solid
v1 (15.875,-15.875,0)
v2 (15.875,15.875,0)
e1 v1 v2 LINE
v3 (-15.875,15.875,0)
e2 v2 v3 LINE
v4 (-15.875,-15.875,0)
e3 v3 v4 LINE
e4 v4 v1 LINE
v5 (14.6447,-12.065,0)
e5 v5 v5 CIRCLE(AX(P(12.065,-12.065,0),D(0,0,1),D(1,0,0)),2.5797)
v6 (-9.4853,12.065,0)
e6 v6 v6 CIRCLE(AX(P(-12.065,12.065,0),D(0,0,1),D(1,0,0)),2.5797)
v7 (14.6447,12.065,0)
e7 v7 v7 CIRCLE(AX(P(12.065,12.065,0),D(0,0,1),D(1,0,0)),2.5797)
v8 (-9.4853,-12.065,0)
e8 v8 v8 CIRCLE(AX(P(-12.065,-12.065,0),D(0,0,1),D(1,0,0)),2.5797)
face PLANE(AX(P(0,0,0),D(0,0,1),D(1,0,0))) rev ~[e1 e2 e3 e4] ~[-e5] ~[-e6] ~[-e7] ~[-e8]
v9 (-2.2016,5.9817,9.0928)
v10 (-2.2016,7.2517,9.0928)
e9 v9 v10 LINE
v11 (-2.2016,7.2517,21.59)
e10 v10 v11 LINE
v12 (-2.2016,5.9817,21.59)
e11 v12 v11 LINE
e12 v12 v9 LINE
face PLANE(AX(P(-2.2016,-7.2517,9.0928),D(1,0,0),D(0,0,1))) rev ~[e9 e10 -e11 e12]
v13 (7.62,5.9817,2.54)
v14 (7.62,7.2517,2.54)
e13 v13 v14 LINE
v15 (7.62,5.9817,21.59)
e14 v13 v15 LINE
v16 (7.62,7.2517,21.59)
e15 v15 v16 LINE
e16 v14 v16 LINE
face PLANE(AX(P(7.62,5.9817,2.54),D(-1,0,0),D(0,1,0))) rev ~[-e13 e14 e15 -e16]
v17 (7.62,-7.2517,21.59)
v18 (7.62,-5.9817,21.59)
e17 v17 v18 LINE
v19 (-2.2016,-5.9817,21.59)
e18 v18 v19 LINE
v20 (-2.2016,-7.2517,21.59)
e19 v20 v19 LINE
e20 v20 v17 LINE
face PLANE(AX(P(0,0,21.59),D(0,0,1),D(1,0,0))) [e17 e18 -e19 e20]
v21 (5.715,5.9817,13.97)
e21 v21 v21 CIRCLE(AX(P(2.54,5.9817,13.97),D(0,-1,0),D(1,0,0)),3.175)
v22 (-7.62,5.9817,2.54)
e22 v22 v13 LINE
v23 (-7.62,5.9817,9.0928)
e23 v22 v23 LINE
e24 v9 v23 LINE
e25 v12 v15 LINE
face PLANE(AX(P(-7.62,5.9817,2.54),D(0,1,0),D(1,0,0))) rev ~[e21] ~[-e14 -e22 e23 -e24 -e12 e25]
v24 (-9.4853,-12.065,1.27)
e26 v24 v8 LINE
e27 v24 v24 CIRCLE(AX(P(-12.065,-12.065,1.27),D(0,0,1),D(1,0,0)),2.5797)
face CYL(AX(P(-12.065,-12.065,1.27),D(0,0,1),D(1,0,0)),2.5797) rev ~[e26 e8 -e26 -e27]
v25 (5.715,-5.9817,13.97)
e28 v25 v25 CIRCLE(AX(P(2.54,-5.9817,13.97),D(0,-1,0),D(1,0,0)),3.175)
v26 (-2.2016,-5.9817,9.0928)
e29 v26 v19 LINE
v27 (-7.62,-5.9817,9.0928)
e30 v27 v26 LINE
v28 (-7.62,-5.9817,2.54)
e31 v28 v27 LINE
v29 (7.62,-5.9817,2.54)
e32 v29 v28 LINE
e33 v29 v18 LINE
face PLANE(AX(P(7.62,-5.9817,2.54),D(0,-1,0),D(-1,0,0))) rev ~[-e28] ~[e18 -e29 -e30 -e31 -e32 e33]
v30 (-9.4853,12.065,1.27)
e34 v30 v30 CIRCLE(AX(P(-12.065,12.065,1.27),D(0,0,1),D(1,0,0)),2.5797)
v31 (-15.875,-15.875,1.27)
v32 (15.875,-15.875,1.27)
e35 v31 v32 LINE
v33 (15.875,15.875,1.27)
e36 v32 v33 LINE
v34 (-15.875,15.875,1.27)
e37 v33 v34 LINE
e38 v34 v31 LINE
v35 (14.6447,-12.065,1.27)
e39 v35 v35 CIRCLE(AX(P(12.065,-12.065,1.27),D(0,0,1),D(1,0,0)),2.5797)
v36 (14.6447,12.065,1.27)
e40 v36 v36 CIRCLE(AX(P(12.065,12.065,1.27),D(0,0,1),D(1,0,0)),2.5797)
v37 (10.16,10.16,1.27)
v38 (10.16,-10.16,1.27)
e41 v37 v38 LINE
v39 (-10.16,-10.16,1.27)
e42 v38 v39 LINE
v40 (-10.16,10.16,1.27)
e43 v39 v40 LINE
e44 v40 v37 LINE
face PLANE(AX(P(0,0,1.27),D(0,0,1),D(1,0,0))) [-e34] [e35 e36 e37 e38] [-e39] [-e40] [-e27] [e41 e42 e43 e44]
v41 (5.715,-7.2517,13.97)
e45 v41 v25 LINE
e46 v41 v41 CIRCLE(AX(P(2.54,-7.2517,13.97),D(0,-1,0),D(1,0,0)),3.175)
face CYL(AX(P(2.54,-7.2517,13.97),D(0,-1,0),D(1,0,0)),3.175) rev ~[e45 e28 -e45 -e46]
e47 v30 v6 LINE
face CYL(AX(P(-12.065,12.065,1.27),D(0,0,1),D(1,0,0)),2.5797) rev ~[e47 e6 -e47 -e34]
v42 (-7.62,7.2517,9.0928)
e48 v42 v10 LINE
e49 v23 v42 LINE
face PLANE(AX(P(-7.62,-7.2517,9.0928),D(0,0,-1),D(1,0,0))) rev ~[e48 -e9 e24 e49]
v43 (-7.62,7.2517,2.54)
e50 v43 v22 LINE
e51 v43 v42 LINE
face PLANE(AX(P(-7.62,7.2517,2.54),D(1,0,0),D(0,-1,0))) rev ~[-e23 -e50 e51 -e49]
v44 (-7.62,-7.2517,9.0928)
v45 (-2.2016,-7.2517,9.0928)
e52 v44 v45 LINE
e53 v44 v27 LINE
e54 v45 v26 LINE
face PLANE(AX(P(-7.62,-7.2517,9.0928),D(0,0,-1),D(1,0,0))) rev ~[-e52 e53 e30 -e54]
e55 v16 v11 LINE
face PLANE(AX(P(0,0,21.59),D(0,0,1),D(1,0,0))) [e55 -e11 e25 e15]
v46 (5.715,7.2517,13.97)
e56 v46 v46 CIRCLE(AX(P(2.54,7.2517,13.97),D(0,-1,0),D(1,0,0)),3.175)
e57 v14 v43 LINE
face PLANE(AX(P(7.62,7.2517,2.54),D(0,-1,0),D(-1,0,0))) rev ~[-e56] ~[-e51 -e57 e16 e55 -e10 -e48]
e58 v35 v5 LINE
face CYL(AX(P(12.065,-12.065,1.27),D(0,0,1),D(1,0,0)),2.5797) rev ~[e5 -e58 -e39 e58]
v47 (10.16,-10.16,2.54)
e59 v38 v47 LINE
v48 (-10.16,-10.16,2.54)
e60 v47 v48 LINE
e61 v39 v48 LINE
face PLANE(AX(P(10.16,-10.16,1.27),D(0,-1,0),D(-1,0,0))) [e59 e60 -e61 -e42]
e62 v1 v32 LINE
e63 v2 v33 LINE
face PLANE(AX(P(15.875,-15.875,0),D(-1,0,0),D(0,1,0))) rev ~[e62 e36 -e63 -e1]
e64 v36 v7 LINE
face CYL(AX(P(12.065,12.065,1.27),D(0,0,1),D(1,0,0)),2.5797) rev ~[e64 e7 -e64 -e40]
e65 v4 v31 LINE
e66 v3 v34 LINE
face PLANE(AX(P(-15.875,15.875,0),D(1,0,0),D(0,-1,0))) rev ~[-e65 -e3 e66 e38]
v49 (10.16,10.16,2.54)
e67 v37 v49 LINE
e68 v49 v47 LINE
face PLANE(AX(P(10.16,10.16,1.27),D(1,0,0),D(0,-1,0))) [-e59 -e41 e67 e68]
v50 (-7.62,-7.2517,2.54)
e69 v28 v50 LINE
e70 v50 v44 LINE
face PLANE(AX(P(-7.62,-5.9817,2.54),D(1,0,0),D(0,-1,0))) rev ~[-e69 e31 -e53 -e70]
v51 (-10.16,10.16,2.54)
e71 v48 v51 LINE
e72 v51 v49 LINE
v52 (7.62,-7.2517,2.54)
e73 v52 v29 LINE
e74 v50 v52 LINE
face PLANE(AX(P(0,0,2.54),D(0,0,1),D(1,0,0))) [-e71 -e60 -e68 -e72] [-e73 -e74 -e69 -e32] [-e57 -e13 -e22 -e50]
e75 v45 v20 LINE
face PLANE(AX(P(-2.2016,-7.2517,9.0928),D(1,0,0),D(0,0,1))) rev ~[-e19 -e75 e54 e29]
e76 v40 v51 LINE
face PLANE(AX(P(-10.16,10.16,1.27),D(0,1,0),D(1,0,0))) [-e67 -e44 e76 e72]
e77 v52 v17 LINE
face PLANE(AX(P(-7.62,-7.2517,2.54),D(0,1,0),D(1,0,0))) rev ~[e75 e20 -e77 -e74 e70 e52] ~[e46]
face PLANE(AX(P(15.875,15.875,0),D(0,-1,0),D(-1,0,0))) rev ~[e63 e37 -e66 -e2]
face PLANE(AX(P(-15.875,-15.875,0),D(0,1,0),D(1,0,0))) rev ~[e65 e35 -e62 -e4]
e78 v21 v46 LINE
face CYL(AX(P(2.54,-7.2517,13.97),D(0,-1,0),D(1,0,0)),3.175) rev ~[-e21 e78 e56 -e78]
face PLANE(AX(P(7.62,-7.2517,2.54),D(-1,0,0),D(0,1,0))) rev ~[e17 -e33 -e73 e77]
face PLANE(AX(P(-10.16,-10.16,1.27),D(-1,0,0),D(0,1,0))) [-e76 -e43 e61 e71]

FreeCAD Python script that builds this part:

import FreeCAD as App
import Part
import Sketcher

V = App.Vector
Q = App.Units.Quantity


def add_polygon(sketch, points):
    """Adds a closed chain of lines whose ends are joined by coincident constraints."""
    first, n = sketch.GeometryCount, len(points)
    for a, b in zip(points, points[1:] + points[:1]):
        sketch.addGeometry(Part.LineSegment(App.Vector(*a, 0), App.Vector(*b, 0)), False)
    for i in range(n):
        sketch.addConstraint(Sketcher.Constraint("Coincident", first + i, 2, first + (i + 1) % n, 1))

doc = App.newDocument("Part")
params = doc.addObject("Spreadsheet::Sheet", "Params")
for row, (alias, value) in enumerate([
    ("sketch1_width", "1.25 in"),
    ("pad1_length", "0.05 in"),
    ("sketch2_width", "0.8 in"),
    ("pad2_length", "0.05 in"),
    ("sketch3_height", "0.05 in"),
    ("sketch3_width", "0.6 in"),
    ("pad3_length", "0.75 in"),
    ("sketch4_diameter", "0.25 in"),
    ("pocket1_length", "5 in"),
    ("sketch5_diameter", "0.203126 in"),
    ("pocket2_length", "0.5 in"),
    ("pocket3_length", "4 in"),
], start=1):
    params.set(f"A{row}", alias)
    params.set(f"B{row}", "=" + value)
    params.setAlias(f"B{row}", alias)

body = doc.addObject("PartDesign::Body", "Body")

# Sketch on XY plane
sketch1 = doc.addObject("Sketcher::SketchObject", "Sketch")
body.addObject(sketch1)
sketch1.AttachmentSupport = (doc.XY_Plane, [""])
sketch1.MapMode = "FlatFace"
add_polygon(sketch1, [(15.875, -15.875), (15.875, 15.875), (-15.875, 15.875), (-15.875, -15.875)])  # lines 0-3
sketch1.addConstraint(Sketcher.Constraint("Vertical", 0))
sketch1.addConstraint(Sketcher.Constraint("Horizontal", 1))
sketch1.addConstraint(Sketcher.Constraint("Vertical", 2))
sketch1.addConstraint(Sketcher.Constraint("Horizontal", 3))
sketch1.addConstraint(Sketcher.Constraint("Symmetric", 0, 2, 2, 2, -1, 1))
sketch1.addConstraint(Sketcher.Constraint("Equal", 3, 0))
sketch1.addConstraint(Sketcher.Constraint("DistanceX", 1, 2, 1, 1, Q("1.25 in")))
sketch1.setExpression("Constraints[10]", "Params.sketch1_width")
pad1 = doc.addObject("PartDesign::Pad", "Pad")
body.addObject(pad1)
pad1.Profile = sketch1
pad1.setExpression("Length", "Params.pad1_length")

# Sketch on XY plane
sketch2 = doc.addObject("Sketcher::SketchObject", "Sketch001")
body.addObject(sketch2)
sketch2.AttachmentSupport = (doc.XY_Plane, [""])
sketch2.MapMode = "FlatFace"
sketch2.AttachmentOffset = App.Placement(V(0, 0, 0.05 * 25.4), App.Rotation())
add_polygon(sketch2, [(10.16, 10.16), (-10.16, 10.16), (-10.16, -10.16), (10.16, -10.16)])  # lines 0-3
sketch2.addConstraint(Sketcher.Constraint("Horizontal", 0))
sketch2.addConstraint(Sketcher.Constraint("Vertical", 1))
sketch2.addConstraint(Sketcher.Constraint("Horizontal", 2))
sketch2.addConstraint(Sketcher.Constraint("Vertical", 3))
sketch2.addConstraint(Sketcher.Constraint("Symmetric", 0, 2, 2, 2, -1, 1))
sketch2.addConstraint(Sketcher.Constraint("Equal", 2, 1))
sketch2.addConstraint(Sketcher.Constraint("DistanceX", 0, 2, 0, 1, Q("0.8 in")))
sketch2.setExpression("Constraints[10]", "Params.sketch2_width")
pad2 = doc.addObject("PartDesign::Pad", "Pad001")
body.addObject(pad2)
pad2.Profile = sketch2
pad2.setExpression("Length", "Params.pad2_length")

# Sketch on XY plane
sketch3 = doc.addObject("Sketcher::SketchObject", "Sketch002")
body.addObject(sketch3)
sketch3.AttachmentSupport = (doc.XY_Plane, [""])
sketch3.MapMode = "FlatFace"
sketch3.AttachmentOffset = App.Placement(V(0, 0, 0.1 * 25.4), App.Rotation())
add_polygon(sketch3, [(-7.62, 7.2517), (-7.62, 5.9817), (7.62, 5.9817), (7.62, 7.2517)])  # lines 0-3
add_polygon(sketch3, [(-7.62, -5.9817), (-7.62, -7.2517), (7.62, -7.2517), (7.62, -5.9817)])  # lines 4-7
sketch3.addConstraint(Sketcher.Constraint("Vertical", 0))
sketch3.addConstraint(Sketcher.Constraint("Horizontal", 1))
sketch3.addConstraint(Sketcher.Constraint("Vertical", 2))
sketch3.addConstraint(Sketcher.Constraint("Horizontal", 3))
sketch3.addConstraint(Sketcher.Constraint("Vertical", 4))
sketch3.addConstraint(Sketcher.Constraint("Horizontal", 5))
sketch3.addConstraint(Sketcher.Constraint("Vertical", 6))
sketch3.addConstraint(Sketcher.Constraint("Horizontal", 7))
sketch3.addConstraint(Sketcher.Constraint("Symmetric", 2, 2, 4, 2, -1, 1))
sketch3.addConstraint(Sketcher.Constraint("Symmetric", 0, 2, 6, 2, -1, 1))
sketch3.addConstraint(Sketcher.Constraint("Vertical", 3, 2, 4, 2))
sketch3.addConstraint(Sketcher.Constraint("DistanceY", 0, 2, 0, 1, Q("0.05 in")))
sketch3.addConstraint(Sketcher.Constraint("DistanceX", 1, 1, 1, 2, Q("0.6 in")))
sketch3.addConstraint(Sketcher.Constraint("DistanceY", 6, 2, 1, 2, Q("0.471 in")))
sketch3.setExpression("Constraints[19]", "Params.sketch3_height")
sketch3.setExpression("Constraints[20]", "Params.sketch3_width")
pad3 = doc.addObject("PartDesign::Pad", "Pad002")
body.addObject(pad3)
pad3.Profile = sketch3
pad3.setExpression("Length", "Params.pad3_length")

# Sketch on XZ plane
sketch4 = doc.addObject("Sketcher::SketchObject", "Sketch003")
body.addObject(sketch4)
sketch4.AttachmentSupport = (doc.XZ_Plane, [""])
sketch4.MapMode = "FlatFace"
sketch4.AttachmentOffset = App.Placement(V(0, 0, 0.2855 * 25.4), App.Rotation())
sketch4.addGeometry(Part.Circle(V(2.54, 13.97, 0), V(0, 0, 1), 3.175), False)
sketch4.addConstraint(Sketcher.Constraint("Diameter", 0, Q("0.25 in")))
sketch4.addConstraint(Sketcher.Constraint("DistanceX", -1, 1, 0, 3, Q("0.1 in")))
sketch4.addConstraint(Sketcher.Constraint("DistanceY", -1, 1, 0, 3, Q("0.55 in")))
sketch4.setExpression("Constraints[0]", "Params.sketch4_diameter")
pocket1 = doc.addObject("PartDesign::Pocket", "Pocket")
body.addObject(pocket1)
pocket1.Profile = sketch4
pocket1.setExpression("Length", "Params.pocket1_length")

# Sketch on XY plane
sketch5 = doc.addObject("Sketcher::SketchObject", "Sketch004")
body.addObject(sketch5)
sketch5.AttachmentSupport = (doc.XY_Plane, [""])
sketch5.MapMode = "FlatFace"
sketch5.AttachmentOffset = App.Placement(V(0, 0, 0.05 * 25.4), App.Rotation())
sketch5.addGeometry(Part.Circle(V(-12.065, 12.065, 0), V(0, 0, 1), 2.5797), False)
sketch5.addGeometry(Part.Circle(V(12.065, 12.065, 0), V(0, 0, 1), 2.5797), False)
sketch5.addGeometry(Part.Circle(V(-12.065, -12.065, 0), V(0, 0, 1), 2.5797), False)
sketch5.addGeometry(Part.Circle(V(12.065, -12.065, 0), V(0, 0, 1), 2.5797), False)
sketch5.addConstraint(Sketcher.Constraint("Equal", 0, 1))
sketch5.addConstraint(Sketcher.Constraint("Equal", 1, 2))
sketch5.addConstraint(Sketcher.Constraint("Equal", 2, 3))
sketch5.addConstraint(Sketcher.Constraint("Symmetric", 1, 3, 2, 3, -1, 1))
sketch5.addConstraint(Sketcher.Constraint("Symmetric", 0, 3, 3, 3, -1, 1))
sketch5.addConstraint(Sketcher.Constraint("Symmetric", 0, 3, 1, 3, -2))
sketch5.addConstraint(Sketcher.Constraint("Diameter", 0, Q("0.203126 in")))
sketch5.addConstraint(Sketcher.Constraint("DistanceX", 0, 3, 1, 3, Q("0.95 in")))
sketch5.addConstraint(Sketcher.Constraint("DistanceY", 2, 3, 0, 3, Q("0.95 in")))
sketch5.setExpression("Constraints[6]", "Params.sketch5_diameter")
pocket2 = doc.addObject("PartDesign::Pocket", "Pocket001")
body.addObject(pocket2)
pocket2.Profile = sketch5
pocket2.setExpression("Length", "Params.pocket2_length")

# Sketch on XZ plane
sketch6 = doc.addObject("Sketcher::SketchObject", "Sketch005")
body.addObject(sketch6)
sketch6.AttachmentSupport = (doc.XZ_Plane, [""])
sketch6.MapMode = "FlatFace"
sketch6.AttachmentOffset = App.Placement(V(0, 0, 0.2855 * 25.4), App.Rotation())
add_polygon(sketch6, [(-7.62, 21.59), (-7.62, 9.0928), (-2.2016, 9.0928), (-2.2016, 21.59)])  # lines 0-3
sketch6.addConstraint(Sketcher.Constraint("Vertical", 0))
sketch6.addConstraint(Sketcher.Constraint("Horizontal", 1))
sketch6.addConstraint(Sketcher.Constraint("Vertical", 2))
sketch6.addConstraint(Sketcher.Constraint("Horizontal", 3))
sketch6.addConstraint(Sketcher.Constraint("DistanceX", 0, 2, -1, 1, Q("0.3 in")))
sketch6.addConstraint(Sketcher.Constraint("DistanceY", -1, 1, 2, 2, Q("0.85 in")))
sketch6.addConstraint(Sketcher.Constraint("DistanceX", 1, 1, 1, 2, Q("5.4184 mm")))
sketch6.addConstraint(Sketcher.Constraint("DistanceY", 0, 2, 0, 1, Q("12.4972 mm")))
pocket3 = doc.addObject("PartDesign::Pocket", "Pocket002")
body.addObject(pocket3)
pocket3.Profile = sketch6
pocket3.setExpression("Length", "Params.pocket3_length")

doc.recompute()
